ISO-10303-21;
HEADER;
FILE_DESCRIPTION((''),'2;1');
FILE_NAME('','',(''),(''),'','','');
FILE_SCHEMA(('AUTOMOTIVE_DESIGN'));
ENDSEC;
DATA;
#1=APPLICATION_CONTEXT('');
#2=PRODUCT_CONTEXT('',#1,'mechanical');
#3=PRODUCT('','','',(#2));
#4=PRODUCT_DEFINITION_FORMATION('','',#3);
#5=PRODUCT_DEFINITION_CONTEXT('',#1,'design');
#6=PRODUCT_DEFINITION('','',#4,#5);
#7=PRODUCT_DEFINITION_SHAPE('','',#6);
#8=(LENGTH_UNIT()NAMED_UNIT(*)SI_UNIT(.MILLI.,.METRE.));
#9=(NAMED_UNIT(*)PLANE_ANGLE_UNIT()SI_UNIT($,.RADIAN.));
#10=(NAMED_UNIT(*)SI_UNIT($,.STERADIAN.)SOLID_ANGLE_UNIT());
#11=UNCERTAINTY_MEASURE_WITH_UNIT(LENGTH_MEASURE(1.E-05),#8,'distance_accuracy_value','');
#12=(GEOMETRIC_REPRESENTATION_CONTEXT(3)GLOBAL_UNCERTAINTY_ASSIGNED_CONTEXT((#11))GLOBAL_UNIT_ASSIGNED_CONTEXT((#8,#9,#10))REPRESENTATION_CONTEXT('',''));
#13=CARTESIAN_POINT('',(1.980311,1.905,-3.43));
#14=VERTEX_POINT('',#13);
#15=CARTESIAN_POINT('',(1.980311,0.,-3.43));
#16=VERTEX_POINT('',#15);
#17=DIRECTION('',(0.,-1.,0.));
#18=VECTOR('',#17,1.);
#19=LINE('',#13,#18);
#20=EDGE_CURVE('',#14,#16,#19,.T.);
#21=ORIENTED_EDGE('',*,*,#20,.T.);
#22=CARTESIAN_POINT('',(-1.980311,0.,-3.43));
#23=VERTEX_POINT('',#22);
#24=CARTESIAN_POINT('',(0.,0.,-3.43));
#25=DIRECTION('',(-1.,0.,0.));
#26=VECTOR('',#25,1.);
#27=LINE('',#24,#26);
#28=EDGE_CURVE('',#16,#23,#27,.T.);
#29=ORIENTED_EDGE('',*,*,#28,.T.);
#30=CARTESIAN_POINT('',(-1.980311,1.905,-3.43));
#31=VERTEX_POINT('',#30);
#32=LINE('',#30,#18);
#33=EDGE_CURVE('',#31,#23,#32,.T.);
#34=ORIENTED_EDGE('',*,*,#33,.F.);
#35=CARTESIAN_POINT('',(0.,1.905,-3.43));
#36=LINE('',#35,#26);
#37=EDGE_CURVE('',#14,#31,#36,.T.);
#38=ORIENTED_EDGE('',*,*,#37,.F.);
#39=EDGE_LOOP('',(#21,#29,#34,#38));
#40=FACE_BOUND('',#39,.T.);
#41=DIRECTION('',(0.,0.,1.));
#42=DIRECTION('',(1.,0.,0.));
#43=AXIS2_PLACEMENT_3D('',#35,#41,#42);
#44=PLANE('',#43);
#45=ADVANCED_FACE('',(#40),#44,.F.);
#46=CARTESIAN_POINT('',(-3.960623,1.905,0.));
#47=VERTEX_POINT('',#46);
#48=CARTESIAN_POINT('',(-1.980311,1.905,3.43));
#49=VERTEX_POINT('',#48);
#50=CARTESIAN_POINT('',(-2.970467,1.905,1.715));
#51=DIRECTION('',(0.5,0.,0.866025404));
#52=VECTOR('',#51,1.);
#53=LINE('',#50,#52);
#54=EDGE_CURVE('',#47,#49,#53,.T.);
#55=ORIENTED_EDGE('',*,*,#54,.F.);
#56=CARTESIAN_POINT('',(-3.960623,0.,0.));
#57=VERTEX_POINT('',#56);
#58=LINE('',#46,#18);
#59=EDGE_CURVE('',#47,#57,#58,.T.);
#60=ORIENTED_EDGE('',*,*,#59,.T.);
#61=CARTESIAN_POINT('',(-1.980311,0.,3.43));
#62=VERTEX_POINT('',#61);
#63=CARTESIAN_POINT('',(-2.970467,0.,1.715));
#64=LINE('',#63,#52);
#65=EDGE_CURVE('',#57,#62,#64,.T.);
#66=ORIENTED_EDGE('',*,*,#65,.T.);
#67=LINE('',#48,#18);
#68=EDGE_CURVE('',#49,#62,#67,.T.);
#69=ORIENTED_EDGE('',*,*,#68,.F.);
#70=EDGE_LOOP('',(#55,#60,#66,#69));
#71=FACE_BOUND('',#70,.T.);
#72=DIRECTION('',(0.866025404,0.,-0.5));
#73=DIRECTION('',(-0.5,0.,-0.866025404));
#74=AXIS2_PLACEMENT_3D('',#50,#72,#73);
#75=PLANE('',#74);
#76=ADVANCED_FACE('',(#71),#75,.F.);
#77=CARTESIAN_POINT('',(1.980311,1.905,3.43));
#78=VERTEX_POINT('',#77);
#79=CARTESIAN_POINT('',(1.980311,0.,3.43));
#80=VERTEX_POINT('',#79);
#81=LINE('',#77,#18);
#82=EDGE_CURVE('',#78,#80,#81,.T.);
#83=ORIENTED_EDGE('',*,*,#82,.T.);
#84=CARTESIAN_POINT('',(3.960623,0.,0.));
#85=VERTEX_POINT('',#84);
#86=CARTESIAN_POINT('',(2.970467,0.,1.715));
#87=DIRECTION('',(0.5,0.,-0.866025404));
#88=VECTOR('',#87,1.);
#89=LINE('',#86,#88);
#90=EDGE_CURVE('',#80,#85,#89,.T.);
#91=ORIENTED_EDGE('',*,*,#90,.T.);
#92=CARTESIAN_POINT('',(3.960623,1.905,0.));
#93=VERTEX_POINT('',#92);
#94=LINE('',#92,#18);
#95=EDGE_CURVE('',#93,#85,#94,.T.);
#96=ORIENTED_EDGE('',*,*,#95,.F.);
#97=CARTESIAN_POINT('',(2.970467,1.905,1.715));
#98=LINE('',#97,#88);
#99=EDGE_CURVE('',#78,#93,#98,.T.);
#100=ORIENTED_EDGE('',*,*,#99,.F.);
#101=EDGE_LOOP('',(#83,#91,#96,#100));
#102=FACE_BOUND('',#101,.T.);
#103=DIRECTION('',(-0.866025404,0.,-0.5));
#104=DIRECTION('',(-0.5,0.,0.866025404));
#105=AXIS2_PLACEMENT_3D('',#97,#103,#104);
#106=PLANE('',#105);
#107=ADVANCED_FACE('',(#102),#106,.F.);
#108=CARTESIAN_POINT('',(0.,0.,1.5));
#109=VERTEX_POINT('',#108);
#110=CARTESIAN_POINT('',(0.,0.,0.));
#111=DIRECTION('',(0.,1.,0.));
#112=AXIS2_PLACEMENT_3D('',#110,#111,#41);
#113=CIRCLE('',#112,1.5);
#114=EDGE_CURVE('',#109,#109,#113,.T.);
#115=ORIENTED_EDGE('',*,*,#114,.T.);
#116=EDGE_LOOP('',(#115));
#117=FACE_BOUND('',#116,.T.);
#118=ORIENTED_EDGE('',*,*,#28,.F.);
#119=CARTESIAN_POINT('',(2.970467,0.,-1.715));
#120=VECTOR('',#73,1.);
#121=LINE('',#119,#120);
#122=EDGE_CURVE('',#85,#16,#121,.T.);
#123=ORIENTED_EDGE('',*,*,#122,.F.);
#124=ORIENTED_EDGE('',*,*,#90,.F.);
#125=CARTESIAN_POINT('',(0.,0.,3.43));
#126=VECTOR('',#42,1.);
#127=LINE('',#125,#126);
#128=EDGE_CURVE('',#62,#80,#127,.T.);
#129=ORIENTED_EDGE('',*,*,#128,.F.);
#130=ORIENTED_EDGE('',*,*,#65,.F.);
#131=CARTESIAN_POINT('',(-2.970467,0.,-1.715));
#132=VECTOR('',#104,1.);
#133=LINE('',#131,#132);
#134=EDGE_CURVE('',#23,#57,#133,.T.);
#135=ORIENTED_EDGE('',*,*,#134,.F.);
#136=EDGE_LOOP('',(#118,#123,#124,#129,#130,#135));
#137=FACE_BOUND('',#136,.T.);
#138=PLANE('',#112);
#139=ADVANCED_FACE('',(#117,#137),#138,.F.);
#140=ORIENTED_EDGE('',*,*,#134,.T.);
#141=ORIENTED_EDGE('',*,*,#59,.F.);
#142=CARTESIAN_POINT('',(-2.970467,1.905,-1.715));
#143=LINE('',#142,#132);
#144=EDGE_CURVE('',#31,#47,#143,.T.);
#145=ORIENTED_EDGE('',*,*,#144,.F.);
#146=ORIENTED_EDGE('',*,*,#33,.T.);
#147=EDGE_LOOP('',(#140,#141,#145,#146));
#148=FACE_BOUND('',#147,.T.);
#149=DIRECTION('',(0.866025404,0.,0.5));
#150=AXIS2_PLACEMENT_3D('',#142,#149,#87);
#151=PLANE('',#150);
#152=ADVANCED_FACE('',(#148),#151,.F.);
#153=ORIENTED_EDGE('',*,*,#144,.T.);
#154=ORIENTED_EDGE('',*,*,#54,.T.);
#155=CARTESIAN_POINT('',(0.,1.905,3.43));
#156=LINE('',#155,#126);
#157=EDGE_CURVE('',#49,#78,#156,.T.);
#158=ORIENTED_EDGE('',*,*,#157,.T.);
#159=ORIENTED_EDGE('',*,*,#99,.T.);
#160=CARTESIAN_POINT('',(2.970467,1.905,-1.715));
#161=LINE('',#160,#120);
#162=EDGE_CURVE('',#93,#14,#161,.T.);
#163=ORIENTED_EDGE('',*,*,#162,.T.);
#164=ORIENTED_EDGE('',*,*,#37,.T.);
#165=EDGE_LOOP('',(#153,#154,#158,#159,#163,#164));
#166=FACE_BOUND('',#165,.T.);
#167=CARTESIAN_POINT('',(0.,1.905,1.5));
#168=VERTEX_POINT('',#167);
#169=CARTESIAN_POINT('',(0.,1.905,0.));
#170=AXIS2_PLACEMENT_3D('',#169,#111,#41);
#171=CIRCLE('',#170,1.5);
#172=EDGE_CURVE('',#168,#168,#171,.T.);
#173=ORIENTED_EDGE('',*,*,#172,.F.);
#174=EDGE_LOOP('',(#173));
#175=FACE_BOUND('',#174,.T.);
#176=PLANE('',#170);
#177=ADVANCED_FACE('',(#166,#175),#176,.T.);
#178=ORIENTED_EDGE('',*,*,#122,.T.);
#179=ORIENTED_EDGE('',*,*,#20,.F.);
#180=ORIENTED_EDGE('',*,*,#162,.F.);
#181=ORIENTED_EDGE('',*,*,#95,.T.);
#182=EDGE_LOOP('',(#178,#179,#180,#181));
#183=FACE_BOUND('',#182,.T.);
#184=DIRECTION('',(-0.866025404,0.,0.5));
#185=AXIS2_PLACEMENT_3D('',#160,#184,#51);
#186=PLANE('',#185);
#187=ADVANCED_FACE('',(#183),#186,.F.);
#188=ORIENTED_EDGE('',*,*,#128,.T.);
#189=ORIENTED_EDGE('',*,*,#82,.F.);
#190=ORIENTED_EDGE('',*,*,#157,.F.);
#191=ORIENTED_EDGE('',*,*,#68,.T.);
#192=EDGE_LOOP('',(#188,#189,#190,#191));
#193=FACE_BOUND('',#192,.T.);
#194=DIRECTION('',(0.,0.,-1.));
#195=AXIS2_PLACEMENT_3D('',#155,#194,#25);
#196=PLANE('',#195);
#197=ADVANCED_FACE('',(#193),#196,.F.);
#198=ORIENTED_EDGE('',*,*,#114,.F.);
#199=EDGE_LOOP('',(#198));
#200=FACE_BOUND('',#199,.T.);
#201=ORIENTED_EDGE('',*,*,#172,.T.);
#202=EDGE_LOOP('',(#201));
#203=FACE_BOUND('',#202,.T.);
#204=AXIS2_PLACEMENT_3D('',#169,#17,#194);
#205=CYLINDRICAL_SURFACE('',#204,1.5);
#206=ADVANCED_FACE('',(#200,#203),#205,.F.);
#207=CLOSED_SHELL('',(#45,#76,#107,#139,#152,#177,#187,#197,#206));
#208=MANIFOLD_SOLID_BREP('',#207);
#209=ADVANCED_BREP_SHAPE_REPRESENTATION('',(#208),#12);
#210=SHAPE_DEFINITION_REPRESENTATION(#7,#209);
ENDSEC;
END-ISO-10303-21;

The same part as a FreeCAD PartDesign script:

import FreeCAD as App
import Part
import Sketcher
from FreeCAD import Vector
Q = App.Units.Quantity

doc = App.newDocument("Part")
params = doc.addObject("Spreadsheet::Sheet", "Params")
for row, (alias, value) in enumerate([
    ("sketch1_diameter", "3 mm"),
    ("pad1_length", "1.905 mm"),
], start=1):
    params.set(f"A{row}", alias)
    params.set(f"B{row}", "=" + value)
    params.setAlias(f"B{row}", alias)

body = doc.addObject("PartDesign::Body", "Body")

# Sketch on XZ plane
sketch1 = body.newObject("Sketcher::SketchObject", "Sketch")
sketch1.AttachmentSupport = (doc.getObject("XZ_Plane"), [""])
sketch1.MapMode = "FlatFace"
sketch1.addGeometry(Part.LineSegment(Vector(-2, 3.4, 0), Vector(2, 3.4, 0)), False)
sketch1.addGeometry(Part.LineSegment(Vector(2, 3.4, 0), Vector(4, 0, 0)), False)
sketch1.addGeometry(Part.LineSegment(Vector(4, 0, 0), Vector(2, -3.4, 0)), False)
sketch1.addGeometry(Part.LineSegment(Vector(2, -3.4, 0), Vector(-2, -3.4, 0)), False)
sketch1.addGeometry(Part.LineSegment(Vector(-2, -3.4, 0), Vector(-4, 0, 0)), False)
sketch1.addGeometry(Part.LineSegment(Vector(-4, 0, 0), Vector(-2, 3.4, 0)), False)
sketch1.addGeometry(Part.Circle(Vector(0, 0, 0), Vector(0, 0, 1), 1.5), False)
sketch1.addConstraint(Sketcher.Constraint("Coincident", 0, 2, 1, 1))
sketch1.addConstraint(Sketcher.Constraint("Coincident", 1, 2, 2, 1))
sketch1.addConstraint(Sketcher.Constraint("Coincident", 2, 2, 3, 1))
sketch1.addConstraint(Sketcher.Constraint("Coincident", 3, 2, 4, 1))
sketch1.addConstraint(Sketcher.Constraint("Coincident", 4, 2, 5, 1))
sketch1.addConstraint(Sketcher.Constraint("Coincident", 5, 2, 0, 1))
sketch1.addConstraint(Sketcher.Constraint("Horizontal", 0))
sketch1.addConstraint(Sketcher.Constraint("Horizontal", 3))
sketch1.addConstraint(Sketcher.Constraint("Coincident", 6, 3, -1, 1))
sketch1.addConstraint(Sketcher.Constraint("Symmetric", 0, 2, 3, 2, -1, 1))
sketch1.addConstraint(Sketcher.Constraint("Symmetric", 1, 2, 4, 2, -1, 1))
sketch1.addConstraint(Sketcher.Constraint("PointOnObject", 1, 2, -1))
sketch1.addConstraint(Sketcher.Constraint("Parallel", 2, 5))
sketch1.addConstraint(Sketcher.Constraint("Vertical", 0, 2, 2, 2))
sketch1.addConstraint(Sketcher.Constraint("Diameter", 6, Q("3 mm")))
sketch1.addConstraint(Sketcher.Constraint("Angle", 1, Q("-60 deg")))
sketch1.addConstraint(Sketcher.Constraint("DistanceY", -1, 1, 0, 2, Q("3.43 mm")))
sketch1.addConstraint(Sketcher.Constraint("DistanceX", 0, 1, 0, 2, Q("3.960623 mm")))
sketch1.setExpression("Constraints[14]", "Params.sketch1_diameter")
pad1 = body.newObject("PartDesign::Pad", "Pad")
pad1.Profile = sketch1
pad1.setExpression("Length", "Params.pad1_length")
pad1.Reversed = True

doc.recompute()
